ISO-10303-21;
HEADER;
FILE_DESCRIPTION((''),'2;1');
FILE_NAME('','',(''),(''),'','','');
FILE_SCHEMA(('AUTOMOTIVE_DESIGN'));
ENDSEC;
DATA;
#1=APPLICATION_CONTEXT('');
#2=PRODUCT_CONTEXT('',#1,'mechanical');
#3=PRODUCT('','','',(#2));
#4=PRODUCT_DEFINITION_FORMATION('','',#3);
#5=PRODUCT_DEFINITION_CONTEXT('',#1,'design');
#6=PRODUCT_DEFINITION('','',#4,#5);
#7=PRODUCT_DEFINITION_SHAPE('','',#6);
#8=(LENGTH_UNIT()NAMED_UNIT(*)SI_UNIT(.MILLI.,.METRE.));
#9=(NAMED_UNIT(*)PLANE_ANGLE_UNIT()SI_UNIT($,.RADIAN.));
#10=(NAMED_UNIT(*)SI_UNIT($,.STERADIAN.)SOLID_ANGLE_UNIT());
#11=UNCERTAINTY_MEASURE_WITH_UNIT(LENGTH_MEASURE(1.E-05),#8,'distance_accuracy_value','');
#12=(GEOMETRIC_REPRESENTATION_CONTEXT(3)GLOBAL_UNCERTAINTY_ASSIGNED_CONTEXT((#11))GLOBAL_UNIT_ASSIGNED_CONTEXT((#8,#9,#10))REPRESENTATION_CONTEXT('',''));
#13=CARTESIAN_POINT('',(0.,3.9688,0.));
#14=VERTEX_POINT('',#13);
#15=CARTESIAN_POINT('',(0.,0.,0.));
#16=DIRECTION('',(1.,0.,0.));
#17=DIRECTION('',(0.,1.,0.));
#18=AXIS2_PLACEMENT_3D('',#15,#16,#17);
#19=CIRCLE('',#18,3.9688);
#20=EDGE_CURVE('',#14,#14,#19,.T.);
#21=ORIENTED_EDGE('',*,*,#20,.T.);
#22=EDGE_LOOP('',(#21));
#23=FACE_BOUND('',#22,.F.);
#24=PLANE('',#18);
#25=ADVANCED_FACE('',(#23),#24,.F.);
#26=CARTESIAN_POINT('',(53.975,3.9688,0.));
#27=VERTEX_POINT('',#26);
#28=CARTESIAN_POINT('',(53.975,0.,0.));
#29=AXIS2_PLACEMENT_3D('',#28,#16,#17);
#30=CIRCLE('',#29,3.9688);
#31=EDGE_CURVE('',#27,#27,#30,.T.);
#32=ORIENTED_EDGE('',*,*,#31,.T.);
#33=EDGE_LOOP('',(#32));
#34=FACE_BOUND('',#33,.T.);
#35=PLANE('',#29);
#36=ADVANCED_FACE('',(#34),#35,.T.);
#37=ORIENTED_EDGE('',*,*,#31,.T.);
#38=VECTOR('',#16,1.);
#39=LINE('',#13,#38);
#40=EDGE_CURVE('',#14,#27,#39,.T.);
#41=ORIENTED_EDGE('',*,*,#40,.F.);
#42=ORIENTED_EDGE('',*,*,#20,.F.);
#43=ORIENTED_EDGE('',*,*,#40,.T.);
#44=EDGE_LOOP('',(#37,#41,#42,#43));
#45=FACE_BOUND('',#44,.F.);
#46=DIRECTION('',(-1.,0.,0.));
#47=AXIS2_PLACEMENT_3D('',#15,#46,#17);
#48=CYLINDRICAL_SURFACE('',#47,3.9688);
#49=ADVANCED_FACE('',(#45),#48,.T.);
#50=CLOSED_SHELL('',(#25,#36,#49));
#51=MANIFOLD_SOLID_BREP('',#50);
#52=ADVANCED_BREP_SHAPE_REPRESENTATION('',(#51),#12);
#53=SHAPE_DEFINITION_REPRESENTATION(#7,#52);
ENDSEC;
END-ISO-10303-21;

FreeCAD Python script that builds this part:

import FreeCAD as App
import Part
import Sketcher
from FreeCAD import Vector
Q = App.Units.Quantity

doc = App.newDocument("Part")
body = doc.addObject("PartDesign::Body", "Body")

sketch1 = doc.addObject("Sketcher::SketchObject", "Sketch")
body.addObject(sketch1)
sketch1.AttachmentSupport = (doc.YZ_Plane, [""])
sketch1.MapMode = "FlatFace"
sketch1.addGeometry(Part.Circle(Vector(0, 0, 0), Vector(0, 0, 1), 4), False)
sketch1.addConstraint([
    Sketcher.Constraint("Coincident", 0, 3, -1, 1),
    Sketcher.Constraint("Diameter", 0, Q("0.3125 in")),
])
pad1 = doc.addObject("PartDesign::Pad", "Pad")
body.addObject(pad1)
pad1.Profile = sketch1
pad1.Length = Q("2.125 in")

doc.recompute()
